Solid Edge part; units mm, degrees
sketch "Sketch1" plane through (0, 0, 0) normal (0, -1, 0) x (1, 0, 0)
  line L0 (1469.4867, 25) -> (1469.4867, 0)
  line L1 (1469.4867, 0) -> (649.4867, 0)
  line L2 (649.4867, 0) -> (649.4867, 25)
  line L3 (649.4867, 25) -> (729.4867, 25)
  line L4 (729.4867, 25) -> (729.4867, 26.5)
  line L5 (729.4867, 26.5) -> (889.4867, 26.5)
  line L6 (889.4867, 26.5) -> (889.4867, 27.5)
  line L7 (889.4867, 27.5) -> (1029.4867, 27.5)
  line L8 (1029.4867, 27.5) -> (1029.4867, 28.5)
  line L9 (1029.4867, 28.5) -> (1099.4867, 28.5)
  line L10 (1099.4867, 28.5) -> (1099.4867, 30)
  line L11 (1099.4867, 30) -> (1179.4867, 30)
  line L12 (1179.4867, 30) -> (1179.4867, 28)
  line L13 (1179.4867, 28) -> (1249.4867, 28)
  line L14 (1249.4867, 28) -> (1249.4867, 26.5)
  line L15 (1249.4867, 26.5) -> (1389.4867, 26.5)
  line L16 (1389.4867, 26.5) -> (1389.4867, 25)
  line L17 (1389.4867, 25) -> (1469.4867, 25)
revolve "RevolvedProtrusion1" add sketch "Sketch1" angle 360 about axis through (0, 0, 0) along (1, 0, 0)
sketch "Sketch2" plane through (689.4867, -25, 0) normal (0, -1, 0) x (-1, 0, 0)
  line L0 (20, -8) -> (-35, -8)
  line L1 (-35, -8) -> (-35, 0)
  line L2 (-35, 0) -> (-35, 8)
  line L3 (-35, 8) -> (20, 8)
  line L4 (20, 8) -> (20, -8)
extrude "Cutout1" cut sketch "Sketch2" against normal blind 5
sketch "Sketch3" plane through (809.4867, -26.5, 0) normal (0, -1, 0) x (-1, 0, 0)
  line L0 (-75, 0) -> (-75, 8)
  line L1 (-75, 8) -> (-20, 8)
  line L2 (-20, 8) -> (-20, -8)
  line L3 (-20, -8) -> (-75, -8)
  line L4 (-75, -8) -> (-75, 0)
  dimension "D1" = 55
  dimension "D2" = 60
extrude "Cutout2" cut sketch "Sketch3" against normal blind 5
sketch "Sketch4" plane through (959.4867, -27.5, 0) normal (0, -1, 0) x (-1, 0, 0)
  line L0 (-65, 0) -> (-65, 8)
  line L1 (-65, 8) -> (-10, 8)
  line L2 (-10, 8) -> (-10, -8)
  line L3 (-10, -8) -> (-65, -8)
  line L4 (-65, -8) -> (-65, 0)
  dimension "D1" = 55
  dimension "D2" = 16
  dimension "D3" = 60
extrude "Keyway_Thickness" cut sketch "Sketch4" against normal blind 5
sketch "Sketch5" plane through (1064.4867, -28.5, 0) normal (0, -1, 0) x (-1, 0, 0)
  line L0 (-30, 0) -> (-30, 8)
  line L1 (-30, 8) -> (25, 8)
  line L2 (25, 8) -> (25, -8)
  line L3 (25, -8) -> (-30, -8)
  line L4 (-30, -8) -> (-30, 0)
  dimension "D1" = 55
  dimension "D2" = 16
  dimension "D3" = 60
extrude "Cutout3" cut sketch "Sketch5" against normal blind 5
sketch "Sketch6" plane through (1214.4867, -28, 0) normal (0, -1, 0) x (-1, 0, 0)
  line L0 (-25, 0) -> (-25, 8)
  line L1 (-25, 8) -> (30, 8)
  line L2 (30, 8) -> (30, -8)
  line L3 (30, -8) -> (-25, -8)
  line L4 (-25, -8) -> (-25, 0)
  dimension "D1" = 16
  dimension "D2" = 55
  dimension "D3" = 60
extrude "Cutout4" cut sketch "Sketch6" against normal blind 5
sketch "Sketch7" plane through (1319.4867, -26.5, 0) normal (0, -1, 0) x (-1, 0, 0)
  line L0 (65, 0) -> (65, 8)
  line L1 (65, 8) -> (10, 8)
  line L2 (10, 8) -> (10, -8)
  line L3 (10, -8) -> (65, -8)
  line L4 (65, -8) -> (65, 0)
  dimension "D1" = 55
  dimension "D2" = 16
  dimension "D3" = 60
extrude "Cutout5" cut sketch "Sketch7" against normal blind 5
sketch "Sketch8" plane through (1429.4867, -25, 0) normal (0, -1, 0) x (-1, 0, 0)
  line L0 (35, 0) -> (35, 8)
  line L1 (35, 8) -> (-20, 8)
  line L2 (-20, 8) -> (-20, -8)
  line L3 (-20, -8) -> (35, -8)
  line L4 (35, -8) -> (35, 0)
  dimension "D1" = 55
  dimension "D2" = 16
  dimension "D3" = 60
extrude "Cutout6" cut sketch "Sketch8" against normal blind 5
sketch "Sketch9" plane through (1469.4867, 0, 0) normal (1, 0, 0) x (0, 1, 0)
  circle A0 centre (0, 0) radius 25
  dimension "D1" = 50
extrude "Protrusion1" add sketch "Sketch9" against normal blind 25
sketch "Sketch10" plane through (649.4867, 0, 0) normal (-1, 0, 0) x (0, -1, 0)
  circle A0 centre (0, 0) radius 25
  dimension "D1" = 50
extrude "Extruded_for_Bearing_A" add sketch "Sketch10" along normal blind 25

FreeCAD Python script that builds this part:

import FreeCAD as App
import Part
import Sketcher
Q = App.Units.Quantity

doc = App.newDocument("Part")
body = doc.addObject("PartDesign::Body", "Body")

sketch1 = doc.addObject("Sketcher::SketchObject", "Sketch")
body.addObject(sketch1)
sketch1.AttachmentSupport = (doc.XZ_Plane, [""])
sketch1.MapMode = "FlatFace"
sketch1.addGeometry([
    Part.LineSegment(App.Vector(1469.5, 0, 0), App.Vector(1469.5, 25, 0)),
    Part.LineSegment(App.Vector(1469.5, 25, 0), App.Vector(1389.5, 25, 0)),
    Part.LineSegment(App.Vector(1389.5, 25, 0), App.Vector(1389.5, 26.5, 0)),
    Part.LineSegment(App.Vector(1389.5, 26.5, 0), App.Vector(1249.5, 26.5, 0)),
    Part.LineSegment(App.Vector(1249.5, 26.5, 0), App.Vector(1249.5, 28, 0)),
    Part.LineSegment(App.Vector(1249.5, 28, 0), App.Vector(1179.5, 28, 0)),
    Part.LineSegment(App.Vector(1179.5, 28, 0), App.Vector(1179.5, 30, 0)),
    Part.LineSegment(App.Vector(1179.5, 30, 0), App.Vector(1099.5, 30, 0)),
    Part.LineSegment(App.Vector(1099.5, 30, 0), App.Vector(1099.5, 28.5, 0)),
    Part.LineSegment(App.Vector(1099.5, 28.5, 0), App.Vector(1029.5, 28.5, 0)),
    Part.LineSegment(App.Vector(1029.5, 28.5, 0), App.Vector(1029.5, 27.5, 0)),
    Part.LineSegment(App.Vector(1029.5, 27.5, 0), App.Vector(889.5, 27.5, 0)),
    Part.LineSegment(App.Vector(889.5, 27.5, 0), App.Vector(889.5, 26.5, 0)),
    Part.LineSegment(App.Vector(889.5, 26.5, 0), App.Vector(729.5, 26.5, 0)),
    Part.LineSegment(App.Vector(729.5, 26.5, 0), App.Vector(729.5, 25, 0)),
    Part.LineSegment(App.Vector(729.5, 25, 0), App.Vector(649.5, 25, 0)),
    Part.LineSegment(App.Vector(649.5, 25, 0), App.Vector(649.5, 0, 0)),
    Part.LineSegment(App.Vector(649.5, 0, 0), App.Vector(1469.5, 0, 0)),
], False)
sketch1.addConstraint([
    Sketcher.Constraint("Coincident", 0, 2, 1, 1),
    Sketcher.Constraint("Coincident", 1, 2, 2, 1),
    Sketcher.Constraint("Coincident", 2, 2, 3, 1),
    Sketcher.Constraint("Coincident", 3, 2, 4, 1),
    Sketcher.Constraint("Coincident", 4, 2, 5, 1),
    Sketcher.Constraint("Coincident", 5, 2, 6, 1),
    Sketcher.Constraint("Coincident", 6, 2, 7, 1),
    Sketcher.Constraint("Coincident", 7, 2, 8, 1),
    Sketcher.Constraint("Coincident", 8, 2, 9, 1),
    Sketcher.Constraint("Coincident", 9, 2, 10, 1),
    Sketcher.Constraint("Coincident", 10, 2, 11, 1),
    Sketcher.Constraint("Coincident", 11, 2, 12, 1),
    Sketcher.Constraint("Coincident", 12, 2, 13, 1),
    Sketcher.Constraint("Coincident", 13, 2, 14, 1),
    Sketcher.Constraint("Coincident", 14, 2, 15, 1),
    Sketcher.Constraint("Coincident", 15, 2, 16, 1),
    Sketcher.Constraint("Coincident", 16, 2, 17, 1),
    Sketcher.Constraint("Coincident", 17, 2, 0, 1),
    Sketcher.Constraint("Vertical", 0),
    Sketcher.Constraint("Horizontal", 1),
    Sketcher.Constraint("Vertical", 2),
    Sketcher.Constraint("Horizontal", 3),
    Sketcher.Constraint("Vertical", 4),
    Sketcher.Constraint("Horizontal", 5),
    Sketcher.Constraint("Vertical", 6),
    Sketcher.Constraint("Horizontal", 7),
    Sketcher.Constraint("Vertical", 8),
    Sketcher.Constraint("Horizontal", 9),
    Sketcher.Constraint("Vertical", 10),
    Sketcher.Constraint("Horizontal", 11),
    Sketcher.Constraint("Vertical", 12),
    Sketcher.Constraint("Horizontal", 13),
    Sketcher.Constraint("Vertical", 14),
    Sketcher.Constraint("Horizontal", 15),
    Sketcher.Constraint("Vertical", 16),
    Sketcher.Constraint("Horizontal", 17),
    Sketcher.Constraint("PointOnObject", 16, 2, -1),
    Sketcher.Constraint("Horizontal", 3, 2, 12, 2),
    Sketcher.Constraint("Horizontal", 1, 2, 14, 2),
    Sketcher.Constraint("Equal", 1, 7),
    Sketcher.Constraint("Equal", 5, 9),
    Sketcher.Constraint("Equal", 3, 11),
    Sketcher.Constraint("Equal", 7, 15),
    Sketcher.Constraint("Equal", 2, 4),
    Sketcher.Constraint("Equal", 4, 8),
    Sketcher.Constraint("Equal", 10, 12),
    Sketcher.Constraint("DistanceX", 1, 2, 1, 1, Q("80 mm")),
    Sketcher.Constraint("DistanceX", 3, 2, 3, 1, Q("140 mm")),
    Sketcher.Constraint("DistanceX", 5, 2, 5, 1, Q("70 mm")),
    Sketcher.Constraint("DistanceX", 13, 2, 13, 1, Q("160 mm")),
    Sketcher.Constraint("DistanceY", 0, 1, 0, 2, Q("25 mm")),
    Sketcher.Constraint("DistanceY", 6, 1, 6, 2, Q("2 mm")),
    Sketcher.Constraint("DistanceY", 2, 1, 2, 2, Q("1.5 mm")),
    Sketcher.Constraint("DistanceX", -1, 1, 0, 2, Q("1469.4867 mm")),
])
revolution = doc.addObject("PartDesign::Revolution", "Revolution")
body.addObject(revolution)
revolution.Profile = sketch1
revolution.ReferenceAxis = (sketch1, ["H_Axis"])
revolution.Angle = 360

sketch2 = doc.addObject("Sketcher::SketchObject", "Sketch001")
body.addObject(sketch2)
sketch2.AttachmentSupport = (doc.XZ_Plane, [""])
sketch2.MapMode = "FlatFace"
sketch2.AttachmentOffset = App.Placement(App.Vector(0, 0, 25), App.Rotation())
sketch2.addGeometry([
    Part.LineSegment(App.Vector(724, 8, 0), App.Vector(669, 8, 0)),
    Part.LineSegment(App.Vector(669, 8, 0), App.Vector(669, -8, 0)),
    Part.LineSegment(App.Vector(669, -8, 0), App.Vector(724, -8, 0)),
    Part.LineSegment(App.Vector(724, -8, 0), App.Vector(724, 8, 0)),
], False)
sketch2.addConstraint([
    Sketcher.Constraint("Coincident", 0, 2, 1, 1),
    Sketcher.Constraint("Coincident", 1, 2, 2, 1),
    Sketcher.Constraint("Coincident", 2, 2, 3, 1),
    Sketcher.Constraint("Coincident", 3, 2, 0, 1),
    Sketcher.Constraint("Horizontal", 0),
    Sketcher.Constraint("Vertical", 1),
    Sketcher.Constraint("Horizontal", 2),
    Sketcher.Constraint("Vertical", 3),
    Sketcher.Constraint("DistanceX", 0, 2, 0, 1, Q("55 mm")),
    Sketcher.Constraint("DistanceY", 1, 2, 1, 1, Q("16 mm")),
    Sketcher.Constraint("DistanceY", -1, 1, 0, 2, Q("8 mm")),
    Sketcher.Constraint("DistanceX", -1, 1, 0, 2, Q("669.4867 mm")),
])
pocket1 = doc.addObject("PartDesign::Pocket", "Pocket")
body.addObject(pocket1)
pocket1.Profile = sketch2
pocket1.Length = 5

sketch3 = doc.addObject("Sketcher::SketchObject", "Sketch002")
body.addObject(sketch3)
sketch3.AttachmentSupport = (doc.XZ_Plane, [""])
sketch3.MapMode = "FlatFace"
sketch3.AttachmentOffset = App.Placement(App.Vector(0, 0, 26.5), App.Rotation())
sketch3.addGeometry([
    Part.LineSegment(App.Vector(884, -8, 0), App.Vector(884, 8, 0)),
    Part.LineSegment(App.Vector(884, 8, 0), App.Vector(829, 8, 0)),
    Part.LineSegment(App.Vector(829, 8, 0), App.Vector(829, -8, 0)),
    Part.LineSegment(App.Vector(829, -8, 0), App.Vector(884, -8, 0)),
], False)
sketch3.addConstraint([
    Sketcher.Constraint("Coincident", 0, 2, 1, 1),
    Sketcher.Constraint("Coincident", 1, 2, 2, 1),
    Sketcher.Constraint("Coincident", 2, 2, 3, 1),
    Sketcher.Constraint("Coincident", 3, 2, 0, 1),
    Sketcher.Constraint("Vertical", 0),
    Sketcher.Constraint("Horizontal", 1),
    Sketcher.Constraint("Vertical", 2),
    Sketcher.Constraint("Horizontal", 3),
    Sketcher.Constraint("DistanceX", 1, 2, 1, 1, Q("55 mm")),
    Sketcher.Constraint("DistanceY", 0, 1, 0, 2, Q("16 mm")),
    Sketcher.Constraint("DistanceY", -1, 1, 0, 2, Q("8 mm")),
    Sketcher.Constraint("DistanceX", -1, 1, 0, 2, Q("884.4867 mm")),
])
pocket2 = doc.addObject("PartDesign::Pocket", "Pocket001")
body.addObject(pocket2)
pocket2.Profile = sketch3
pocket2.Length = 5

sketch4 = doc.addObject("Sketcher::SketchObject", "Sketch003")
body.addObject(sketch4)
sketch4.AttachmentSupport = (doc.XZ_Plane, [""])
sketch4.MapMode = "FlatFace"
sketch4.AttachmentOffset = App.Placement(App.Vector(0, 0, 27.5), App.Rotation())
sketch4.addGeometry([
    Part.LineSegment(App.Vector(1024, -8, 0), App.Vector(1024, 8, 0)),
    Part.LineSegment(App.Vector(1024, 8, 0), App.Vector(969, 8, 0)),
    Part.LineSegment(App.Vector(969, 8, 0), App.Vector(969, -8, 0)),
    Part.LineSegment(App.Vector(969, -8, 0), App.Vector(1024, -8, 0)),
], False)
sketch4.addConstraint([
    Sketcher.Constraint("Coincident", 0, 2, 1, 1),
    Sketcher.Constraint("Coincident", 1, 2, 2, 1),
    Sketcher.Constraint("Coincident", 2, 2, 3, 1),
    Sketcher.Constraint("Coincident", 3, 2, 0, 1),
    Sketcher.Constraint("Vertical", 0),
    Sketcher.Constraint("Horizontal", 1),
    Sketcher.Constraint("Vertical", 2),
    Sketcher.Constraint("Horizontal", 3),
    Sketcher.Constraint("DistanceX", 1, 2, 1, 1, Q("55 mm")),
    Sketcher.Constraint("DistanceY", 0, 1, 0, 2, Q("16 mm")),
    Sketcher.Constraint("DistanceY", -1, 1, 0, 2, Q("8 mm")),
    Sketcher.Constraint("DistanceX", -1, 1, 0, 2, Q("1024.4867 mm")),
])
pocket3 = doc.addObject("PartDesign::Pocket", "Pocket002")
body.addObject(pocket3)
pocket3.Profile = sketch4
pocket3.Length = 5

sketch5 = doc.addObject("Sketcher::SketchObject", "Sketch004")
body.addObject(sketch5)
sketch5.AttachmentSupport = (doc.XZ_Plane, [""])
sketch5.MapMode = "FlatFace"
sketch5.AttachmentOffset = App.Placement(App.Vector(0, 0, 28.5), App.Rotation())
sketch5.addGeometry([
    Part.LineSegment(App.Vector(1094, -8, 0), App.Vector(1094, 8, 0)),
    Part.LineSegment(App.Vector(1094, 8, 0), App.Vector(1039, 8, 0)),
    Part.LineSegment(App.Vector(1039, 8, 0), App.Vector(1039, -8, 0)),
    Part.LineSegment(App.Vector(1039, -8, 0), App.Vector(1094, -8, 0)),
], False)
sketch5.addConstraint([
    Sketcher.Constraint("Coincident", 0, 2, 1, 1),
    Sketcher.Constraint("Coincident", 1, 2, 2, 1),
    Sketcher.Constraint("Coincident", 2, 2, 3, 1),
    Sketcher.Constraint("Coincident", 3, 2, 0, 1),
    Sketcher.Constraint("Vertical", 0),
    Sketcher.Constraint("Horizontal", 1),
    Sketcher.Constraint("Vertical", 2),
    Sketcher.Constraint("Horizontal", 3),
    Sketcher.Constraint("DistanceX", 1, 2, 1, 1, Q("55 mm")),
    Sketcher.Constraint("DistanceY", 0, 1, 0, 2, Q("16 mm")),
    Sketcher.Constraint("DistanceY", -1, 1, 0, 2, Q("8 mm")),
    Sketcher.Constraint("DistanceX", -1, 1, 0, 2, Q("1094.4867 mm")),
])
pocket4 = doc.addObject("PartDesign::Pocket", "Pocket003")
body.addObject(pocket4)
pocket4.Profile = sketch5
pocket4.Length = 5

sketch6 = doc.addObject("Sketcher::SketchObject", "Sketch005")
body.addObject(sketch6)
sketch6.AttachmentSupport = (doc.XZ_Plane, [""])
sketch6.MapMode = "FlatFace"
sketch6.AttachmentOffset = App.Placement(App.Vector(0, 0, 28), App.Rotation())
sketch6.addGeometry([
    Part.LineSegment(App.Vector(1239, -8, 0), App.Vector(1239, 8, 0)),
    Part.LineSegment(App.Vector(1239, 8, 0), App.Vector(1184, 8, 0)),
    Part.LineSegment(App.Vector(1184, 8, 0), App.Vector(1184, -8, 0)),
    Part.LineSegment(App.Vector(1184, -8, 0), App.Vector(1239, -8, 0)),
], False)
sketch6.addConstraint([
    Sketcher.Constraint("Coincident", 0, 2, 1, 1),
    Sketcher.Constraint("Coincident", 1, 2, 2, 1),
    Sketcher.Constraint("Coincident", 2, 2, 3, 1),
    Sketcher.Constraint("Coincident", 3, 2, 0, 1),
    Sketcher.Constraint("Vertical", 0),
    Sketcher.Constraint("Horizontal", 1),
    Sketcher.Constraint("Vertical", 2),
    Sketcher.Constraint("Horizontal", 3),
    Sketcher.Constraint("DistanceX", 1, 2, 1, 1, Q("55 mm")),
    Sketcher.Constraint("DistanceY", 0, 1, 0, 2, Q("16 mm")),
    Sketcher.Constraint("DistanceY", -1, 1, 0, 2, Q("8 mm")),
    Sketcher.Constraint("DistanceX", -1, 1, 0, 2, Q("1239.4867 mm")),
])
pocket5 = doc.addObject("PartDesign::Pocket", "Pocket004")
body.addObject(pocket5)
pocket5.Profile = sketch6
pocket5.Length = 5

sketch7 = doc.addObject("Sketcher::SketchObject", "Sketch006")
body.addObject(sketch7)
sketch7.AttachmentSupport = (doc.XZ_Plane, [""])
sketch7.MapMode = "FlatFace"
sketch7.AttachmentOffset = App.Placement(App.Vector(0, 0, 26.5), App.Rotation())
sketch7.addGeometry([
    Part.LineSegment(App.Vector(1254, 8, 0), App.Vector(1254, -8, 0)),
    Part.LineSegment(App.Vector(1254, -8, 0), App.Vector(1309, -8, 0)),
    Part.LineSegment(App.Vector(1309, -8, 0), App.Vector(1309, 8, 0)),
    Part.LineSegment(App.Vector(1309, 8, 0), App.Vector(1254, 8, 0)),
], False)
sketch7.addConstraint([
    Sketcher.Constraint("Coincident", 0, 2, 1, 1),
    Sketcher.Constraint("Coincident", 1, 2, 2, 1),
    Sketcher.Constraint("Coincident", 2, 2, 3, 1),
    Sketcher.Constraint("Coincident", 3, 2, 0, 1),
    Sketcher.Constraint("Vertical", 0),
    Sketcher.Constraint("Horizontal", 1),
    Sketcher.Constraint("Vertical", 2),
    Sketcher.Constraint("Horizontal", 3),
    Sketcher.Constraint("DistanceX", 1, 1, 1, 2, Q("55 mm")),
    Sketcher.Constraint("DistanceY", 0, 2, 0, 1, Q("16 mm")),
    Sketcher.Constraint("DistanceY", 0, 2, -1, 1, Q("8 mm")),
    Sketcher.Constraint("DistanceX", -1, 1, 0, 2, Q("1254.4867 mm")),
])
pocket6 = doc.addObject("PartDesign::Pocket", "Pocket005")
body.addObject(pocket6)
pocket6.Profile = sketch7
pocket6.Length = 5

sketch8 = doc.addObject("Sketcher::SketchObject", "Sketch007")
body.addObject(sketch8)
sketch8.AttachmentSupport = (doc.XZ_Plane, [""])
sketch8.MapMode = "FlatFace"
sketch8.AttachmentOffset = App.Placement(App.Vector(0, 0, 25), App.Rotation())
sketch8.addGeometry([
    Part.LineSegment(App.Vector(1394, 8, 0), App.Vector(1394, -8, 0)),
    Part.LineSegment(App.Vector(1394, -8, 0), App.Vector(1449, -8, 0)),
    Part.LineSegment(App.Vector(1449, -8, 0), App.Vector(1449, 8, 0)),
    Part.LineSegment(App.Vector(1449, 8, 0), App.Vector(1394, 8, 0)),
], False)
sketch8.addConstraint([
    Sketcher.Constraint("Coincident", 0, 2, 1, 1),
    Sketcher.Constraint("Coincident", 1, 2, 2, 1),
    Sketcher.Constraint("Coincident", 2, 2, 3, 1),
    Sketcher.Constraint("Coincident", 3, 2, 0, 1),
    Sketcher.Constraint("Vertical", 0),
    Sketcher.Constraint("Horizontal", 1),
    Sketcher.Constraint("Vertical", 2),
    Sketcher.Constraint("Horizontal", 3),
    Sketcher.Constraint("DistanceX", 1, 1, 1, 2, Q("55 mm")),
    Sketcher.Constraint("DistanceY", 0, 2, 0, 1, Q("16 mm")),
    Sketcher.Constraint("DistanceY", 0, 2, -1, 1, Q("8 mm")),
    Sketcher.Constraint("DistanceX", -1, 1, 0, 2, Q("1394.4867 mm")),
])
pocket7 = doc.addObject("PartDesign::Pocket", "Pocket006")
body.addObject(pocket7)
pocket7.Profile = sketch8
pocket7.Length = 5

sketch9 = doc.addObject("Sketcher::SketchObject", "Sketch008")
body.addObject(sketch9)
sketch9.AttachmentSupport = (doc.YZ_Plane, [""])
sketch9.MapMode = "FlatFace"
sketch9.AttachmentOffset = App.Placement(App.Vector(0, 0, 1469.4867), App.Rotation())
sketch9.addGeometry(Part.Circle(App.Vector(0, 0, 0), App.Vector(0, 0, 1), 25), False)
sketch9.addConstraint([
    Sketcher.Constraint("Coincident", 0, 3, -1, 1),
    Sketcher.Constraint("Diameter", 0, Q("50 mm")),
])
pad1 = doc.addObject("PartDesign::Pad", "Pad")
body.addObject(pad1)
pad1.Profile = sketch9
pad1.Length = 25
pad1.Reversed = True

sketch10 = doc.addObject("Sketcher::SketchObject", "Sketch009")
body.addObject(sketch10)
sketch10.AttachmentSupport = (doc.YZ_Plane, [""])
sketch10.MapMode = "FlatFace"
sketch10.AttachmentOffset = App.Placement(App.Vector(0, 0, 649.4867), App.Rotation())
sketch10.addGeometry(Part.Circle(App.Vector(0, 0, 0), App.Vector(0, 0, 1), 25), False)
sketch10.addConstraint([
    Sketcher.Constraint("Coincident", 0, 3, -1, 1),
    Sketcher.Constraint("Diameter", 0, Q("50 mm")),
])
pad2 = doc.addObject("PartDesign::Pad", "Pad001")
body.addObject(pad2)
pad2.Profile = sketch10
pad2.Length = 25
pad2.Reversed = True

doc.recompute()
